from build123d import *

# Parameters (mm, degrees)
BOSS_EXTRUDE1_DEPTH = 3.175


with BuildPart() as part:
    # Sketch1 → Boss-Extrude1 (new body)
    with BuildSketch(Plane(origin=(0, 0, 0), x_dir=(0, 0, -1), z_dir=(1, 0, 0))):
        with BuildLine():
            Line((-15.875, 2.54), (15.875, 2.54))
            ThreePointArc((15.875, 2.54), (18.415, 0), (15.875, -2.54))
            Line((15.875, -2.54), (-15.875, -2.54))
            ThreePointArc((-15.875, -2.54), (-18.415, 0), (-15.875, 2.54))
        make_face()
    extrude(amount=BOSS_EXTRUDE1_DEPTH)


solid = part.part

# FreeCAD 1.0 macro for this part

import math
import FreeCAD as App
import Part
import Sketcher
Q = App.Units.Quantity

doc = App.newDocument("Part")
body = doc.addObject("PartDesign::Body", "Body")

# Sketch on YZ plane
sketch1 = body.newObject("Sketcher::SketchObject", "Sketch")
sketch1.AttachmentSupport = (doc.getObject("YZ_Plane"), [""])
sketch1.MapMode = "FlatFace"
sketch1.addGeometry([
    Part.LineSegment(App.Vector(2.5, -15.9, 0), App.Vector(2.5, 15.9, 0)),
    Part.ArcOfCircle(Part.Circle(App.Vector(0, 15.9, 0), App.Vector(0, 0, 1), 2.5), math.radians(0), math.radians(180)),
    Part.LineSegment(App.Vector(-2.5, 15.9, 0), App.Vector(-2.5, -15.9, 0)),
    Part.ArcOfCircle(Part.Circle(App.Vector(0, -15.9, 0), App.Vector(0, 0, 1), 2.5), math.radians(180), math.radians(360)),
], False)
sketch1.addConstraint([
    Sketcher.Constraint("Tangent", 0, 2, 1, 1),
    Sketcher.Constraint("Tangent", 1, 2, 2, 1),
    Sketcher.Constraint("Tangent", 2, 2, 3, 1),
    Sketcher.Constraint("Tangent", 3, 2, 0, 1),
    Sketcher.Constraint("Vertical", 0),
    Sketcher.Constraint("Vertical", 2),
    Sketcher.Constraint("Symmetric", 1, 3, 3, 3, -1, 1),
    Sketcher.Constraint("Radius", 1, Q("0.1 in")),
    Sketcher.Constraint("DistanceY", 0, 1, 0, 2, Q("1.25 in")),
])
pad1 = body.newObject("PartDesign::Pad", "Pad")
pad1.Profile = sketch1
pad1.Length = Q("0.125 in")

doc.recompute()
